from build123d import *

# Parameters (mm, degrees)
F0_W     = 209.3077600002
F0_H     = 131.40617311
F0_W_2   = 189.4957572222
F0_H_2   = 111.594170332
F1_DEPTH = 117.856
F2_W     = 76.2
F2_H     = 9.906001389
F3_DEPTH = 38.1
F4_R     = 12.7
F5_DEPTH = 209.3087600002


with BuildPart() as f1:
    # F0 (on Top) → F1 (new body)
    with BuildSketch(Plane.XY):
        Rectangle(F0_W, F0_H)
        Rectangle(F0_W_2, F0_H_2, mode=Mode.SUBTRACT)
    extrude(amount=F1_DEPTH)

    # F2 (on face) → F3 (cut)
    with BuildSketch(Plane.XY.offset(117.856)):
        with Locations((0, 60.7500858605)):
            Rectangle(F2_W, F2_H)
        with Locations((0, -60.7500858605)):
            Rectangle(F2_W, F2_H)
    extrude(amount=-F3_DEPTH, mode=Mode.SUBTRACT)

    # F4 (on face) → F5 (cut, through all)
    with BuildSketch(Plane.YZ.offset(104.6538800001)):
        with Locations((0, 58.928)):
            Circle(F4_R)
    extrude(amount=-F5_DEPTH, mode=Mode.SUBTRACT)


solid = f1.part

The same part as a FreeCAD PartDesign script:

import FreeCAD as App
import Part
import Sketcher
Q = App.Units.Quantity


def add_polygon(sketch, points):
    """Adds a closed chain of lines whose ends are joined by coincident constraints."""
    first, n = sketch.GeometryCount, len(points)
    for a, b in zip(points, points[1:] + points[:1]):
        sketch.addGeometry(Part.LineSegment(App.Vector(*a, 0), App.Vector(*b, 0)), False)
    for i in range(n):
        sketch.addConstraint(Sketcher.Constraint("Coincident", first + i, 2, first + (i + 1) % n, 1))

doc = App.newDocument("Part")
params = doc.addObject("Spreadsheet::Sheet", "Params")
for row, (alias, value) in enumerate([
    ("pad1_length", "4.64 in"),
    ("sketch2_width", "3 in"),
    ("sketch2_height", "0.3900001 in"),
    ("pocket1_length", "1.5 in"),
    ("sketch3_diameter", "1 in"),
], start=1):
    params.set(f"A{row}", alias)
    params.set(f"B{row}", "=" + value)
    params.setAlias(f"B{row}", alias)

body = doc.addObject("PartDesign::Body", "Body")

sketch1 = body.newObject("Sketcher::SketchObject", "Sketch")
sketch1.AttachmentSupport = (doc.getObject("XY_Plane"), [""])
sketch1.MapMode = "FlatFace"
add_polygon(sketch1, [(-105, 66), (-105, -66), (105, -66), (105, 66)])
add_polygon(sketch1, [(95, -56), (-95, -56), (-95, 56), (95, 56)])
sketch1.addConstraint(Sketcher.Constraint("Vertical", 0))
sketch1.addConstraint(Sketcher.Constraint("Horizontal", 1))
sketch1.addConstraint(Sketcher.Constraint("Vertical", 2))
sketch1.addConstraint(Sketcher.Constraint("Horizontal", 3))
sketch1.addConstraint(Sketcher.Constraint("Horizontal", 4))
sketch1.addConstraint(Sketcher.Constraint("Vertical", 5))
sketch1.addConstraint(Sketcher.Constraint("Horizontal", 6))
sketch1.addConstraint(Sketcher.Constraint("Vertical", 7))
sketch1.addConstraint(Sketcher.Constraint("Symmetric", 0, 2, 2, 2, -1, 1))
sketch1.addConstraint(Sketcher.Constraint("Symmetric", 4, 2, 6, 2, -1, 1))
sketch1.addConstraint(Sketcher.Constraint("DistanceX", 0, 2, 4, 2, Q("0.3900001 in")))
sketch1.addConstraint(Sketcher.Constraint("DistanceY", 0, 2, 4, 2, Q("0.3900001 in")))
sketch1.addConstraint(Sketcher.Constraint("DistanceX", 1, 1, 1, 2, Q("209.30776 mm")))
sketch1.addConstraint(Sketcher.Constraint("DistanceY", 5, 1, 5, 2, Q("111.59417 mm")))
pad1 = body.newObject("PartDesign::Pad", "Pad")
pad1.Profile = sketch1
pad1.setExpression("Length", "Params.pad1_length")

sketch2 = body.newObject("Sketcher::SketchObject", "Sketch001")
sketch2.AttachmentSupport = (doc.getObject("XY_Plane"), [""])
sketch2.MapMode = "FlatFace"
sketch2.AttachmentOffset = App.Placement(App.Vector(0, 0, 4.64 * 25.4), App.Rotation())
add_polygon(sketch2, [(-38, 66), (-38, 56), (38, 56), (38, 66)])
add_polygon(sketch2, [(-38, -56), (-38, -66), (38, -66), (38, -56)])
sketch2.addConstraint(Sketcher.Constraint("Vertical", 0))
sketch2.addConstraint(Sketcher.Constraint("Horizontal", 1))
sketch2.addConstraint(Sketcher.Constraint("Vertical", 2))
sketch2.addConstraint(Sketcher.Constraint("Horizontal", 3))
sketch2.addConstraint(Sketcher.Constraint("Vertical", 4))
sketch2.addConstraint(Sketcher.Constraint("Horizontal", 5))
sketch2.addConstraint(Sketcher.Constraint("Vertical", 6))
sketch2.addConstraint(Sketcher.Constraint("Horizontal", 7))
sketch2.addConstraint(Sketcher.Constraint("Symmetric", 2, 2, 4, 2, -1, 1))
sketch2.addConstraint(Sketcher.Constraint("Symmetric", 0, 2, 6, 2, -1, 1))
sketch2.addConstraint(Sketcher.Constraint("Vertical", 3, 2, 4, 2))
sketch2.addConstraint(Sketcher.Constraint("DistanceX", 1, 1, 1, 2, Q("3 in")))
sketch2.addConstraint(Sketcher.Constraint("DistanceY", 0, 2, 0, 1, Q("0.3900001 in")))
sketch2.addConstraint(Sketcher.Constraint("DistanceY", 4, 2, 0, 2, Q("121.500172 mm")))
sketch2.setExpression("Constraints[19]", "Params.sketch2_width")
sketch2.setExpression("Constraints[20]", "Params.sketch2_height")
pocket1 = body.newObject("PartDesign::Pocket", "Pocket")
pocket1.Profile = sketch2
pocket1.setExpression("Length", "Params.pocket1_length")

sketch3 = body.newObject("Sketcher::SketchObject", "Sketch002")
sketch3.AttachmentSupport = (doc.getObject("YZ_Plane"), [""])
sketch3.MapMode = "FlatFace"
sketch3.AttachmentOffset = App.Placement(App.Vector(0, 0, 104.65388), App.Rotation())
sketch3.addGeometry(Part.Circle(App.Vector(0, 59, 0), App.Vector(0, 0, 1), 13), False)
sketch3.addConstraint(Sketcher.Constraint("PointOnObject", 0, 3, -2))
sketch3.addConstraint(Sketcher.Constraint("Diameter", 0, Q("1 in")))
sketch3.addConstraint(Sketcher.Constraint("DistanceY", -1, 1, 0, 3, Q("2.32 in")))
sketch3.setExpression("Constraints[1]", "Params.sketch3_diameter")
pocket2 = body.newObject("PartDesign::Pocket", "Pocket001")
pocket2.Profile = sketch3
pocket2.Type = "ThroughAll"

doc.recompute()
